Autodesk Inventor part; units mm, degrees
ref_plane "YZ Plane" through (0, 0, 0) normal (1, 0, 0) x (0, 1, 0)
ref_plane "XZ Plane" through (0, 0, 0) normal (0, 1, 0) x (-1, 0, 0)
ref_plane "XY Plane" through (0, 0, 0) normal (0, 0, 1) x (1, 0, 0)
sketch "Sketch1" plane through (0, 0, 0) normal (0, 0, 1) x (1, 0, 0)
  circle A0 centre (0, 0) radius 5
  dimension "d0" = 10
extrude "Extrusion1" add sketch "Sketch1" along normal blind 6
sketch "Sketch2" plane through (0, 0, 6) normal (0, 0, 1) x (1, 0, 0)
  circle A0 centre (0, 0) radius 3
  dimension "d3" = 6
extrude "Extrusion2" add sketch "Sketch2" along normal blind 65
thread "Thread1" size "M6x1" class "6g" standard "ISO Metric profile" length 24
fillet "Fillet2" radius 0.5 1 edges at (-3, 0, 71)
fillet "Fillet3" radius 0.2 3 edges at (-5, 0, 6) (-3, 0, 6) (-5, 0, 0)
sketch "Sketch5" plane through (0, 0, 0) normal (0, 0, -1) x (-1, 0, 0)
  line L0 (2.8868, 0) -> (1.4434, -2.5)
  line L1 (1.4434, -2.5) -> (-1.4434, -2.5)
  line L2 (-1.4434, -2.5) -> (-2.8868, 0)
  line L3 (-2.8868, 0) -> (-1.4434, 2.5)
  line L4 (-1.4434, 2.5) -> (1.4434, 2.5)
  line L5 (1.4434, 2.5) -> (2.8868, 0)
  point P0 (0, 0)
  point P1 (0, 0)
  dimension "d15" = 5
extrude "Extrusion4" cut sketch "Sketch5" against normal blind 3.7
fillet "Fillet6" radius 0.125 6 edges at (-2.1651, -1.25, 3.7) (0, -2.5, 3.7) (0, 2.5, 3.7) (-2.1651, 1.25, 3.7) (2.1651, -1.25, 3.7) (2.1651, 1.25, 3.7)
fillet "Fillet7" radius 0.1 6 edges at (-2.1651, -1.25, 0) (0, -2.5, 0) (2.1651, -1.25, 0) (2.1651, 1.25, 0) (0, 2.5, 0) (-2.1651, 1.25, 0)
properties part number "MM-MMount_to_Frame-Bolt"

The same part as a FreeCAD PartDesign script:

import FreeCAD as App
import Part
import Sketcher
Q = App.Units.Quantity


def edges_at(feature, points):
    """Names of the edges that pass closest to the given points."""
    edges = feature.Shape.Edges
    near = lambda p: min(range(len(edges)), key=lambda i: edges[i].distToShape(Part.Vertex(*p))[0])
    return sorted({f"Edge{near(p) + 1}" for p in points})

doc = App.newDocument("Part")
body = doc.addObject("PartDesign::Body", "Body")

sketch1 = body.newObject("Sketcher::SketchObject", "Sketch")
sketch1.AttachmentSupport = (doc.getObject("XY_Plane"), [""])
sketch1.MapMode = "FlatFace"
sketch1.addGeometry(Part.Circle(App.Vector(0, 0, 0), App.Vector(0, 0, 1), 5), False)
sketch1.addConstraint(Sketcher.Constraint("Coincident", 0, 3, -1, 1))
sketch1.addConstraint(Sketcher.Constraint("Diameter", 0, 10.0))
pad1 = body.newObject("PartDesign::Pad", "Pad")
pad1.Profile = sketch1
pad1.Length = 6

sketch2 = body.newObject("Sketcher::SketchObject", "Sketch001")
sketch2.AttachmentSupport = (doc.getObject("XY_Plane"), [""])
sketch2.MapMode = "FlatFace"
sketch2.AttachmentOffset = App.Placement(App.Vector(0, 0, 6), App.Rotation())
sketch2.addGeometry(Part.Circle(App.Vector(0, 0, 0), App.Vector(0, 0, 1), 3), False)
sketch2.addConstraint(Sketcher.Constraint("Coincident", 0, 3, -1, 1))
sketch2.addConstraint(Sketcher.Constraint("Diameter", 0, 6.0))
pad2 = body.newObject("PartDesign::Pad", "Pad001")
pad2.Profile = sketch2
pad2.Length = 65
doc.recompute()

fillet = body.newObject("PartDesign::Fillet", "Fillet")
fillet.Base = (pad2, edges_at(pad2, [(-3, 0, 71)]))
fillet.Radius = 0.5
doc.recompute()

fillet2 = body.newObject("PartDesign::Fillet", "Fillet001")
fillet2.Base = (fillet, edges_at(fillet, [(-5, 0, 6), (-3, 0, 6), (-5, 0, 0)]))
fillet2.Radius = 0.2

sketch3 = body.newObject("Sketcher::SketchObject", "Sketch002")
sketch3.AttachmentSupport = (doc.getObject("XY_Plane"), [""])
sketch3.MapMode = "FlatFace"
sketch3.addGeometry(Part.LineSegment(App.Vector(-1.4, -2.5, 0), App.Vector(-2.9, 0, 0)), False)
sketch3.addGeometry(Part.LineSegment(App.Vector(-2.9, 0, 0), App.Vector(-1.4, 2.5, 0)), False)
sketch3.addGeometry(Part.LineSegment(App.Vector(-1.4, 2.5, 0), App.Vector(1.4, 2.5, 0)), False)
sketch3.addGeometry(Part.LineSegment(App.Vector(1.4, 2.5, 0), App.Vector(2.9, 0, 0)), False)
sketch3.addGeometry(Part.LineSegment(App.Vector(2.9, 0, 0), App.Vector(1.4, -2.5, 0)), False)
sketch3.addGeometry(Part.LineSegment(App.Vector(1.4, -2.5, 0), App.Vector(-1.4, -2.5, 0)), False)
sketch3.addConstraint(Sketcher.Constraint("Coincident", 0, 2, 1, 1))
sketch3.addConstraint(Sketcher.Constraint("Coincident", 1, 2, 2, 1))
sketch3.addConstraint(Sketcher.Constraint("Coincident", 2, 2, 3, 1))
sketch3.addConstraint(Sketcher.Constraint("Coincident", 3, 2, 4, 1))
sketch3.addConstraint(Sketcher.Constraint("Coincident", 4, 2, 5, 1))
sketch3.addConstraint(Sketcher.Constraint("Coincident", 5, 2, 0, 1))
sketch3.addConstraint(Sketcher.Constraint("Horizontal", 2))
sketch3.addConstraint(Sketcher.Constraint("Horizontal", 5))
sketch3.addConstraint(Sketcher.Constraint("Symmetric", 0, 2, 3, 2, -1, 1))
sketch3.addConstraint(Sketcher.Constraint("Symmetric", 1, 2, 4, 2, -1, 1))
sketch3.addConstraint(Sketcher.Constraint("PointOnObject", 0, 2, -1))
sketch3.addConstraint(Sketcher.Constraint("Parallel", 0, 3))
sketch3.addConstraint(Sketcher.Constraint("Vertical", 2, 2, 4, 2))
sketch3.addConstraint(Sketcher.Constraint("DistanceY", 4, 2, 2, 2, 5.0))
sketch3.addConstraint(Sketcher.Constraint("Angle", 0, Q("120.0004 deg")))
sketch3.addConstraint(Sketcher.Constraint("DistanceX", 2, 1, 2, 2, 2.8868))
pocket1 = body.newObject("PartDesign::Pocket", "Pocket")
pocket1.Profile = sketch3
pocket1.Length = 3.7
pocket1.Reversed = True
doc.recompute()

fillet3 = body.newObject("PartDesign::Fillet", "Fillet002")
fillet3.Base = (pocket1, edges_at(pocket1, [
    (-2.165, -1.25, 3.7),
    (0, -2.5, 3.7),
    (0, 2.5, 3.7),
    (-2.165, 1.25, 3.7),
    (2.165, -1.25, 3.7),
    (2.165, 1.25, 3.7),
]))
fillet3.Radius = 0.125
doc.recompute()

fillet4 = body.newObject("PartDesign::Fillet", "Fillet003")
fillet4.Base = (fillet3, edges_at(fillet3, [
    (-2.165, -1.25, 0),
    (0, -2.5, 0),
    (2.165, -1.25, 0),
    (2.165, 1.25, 0),
    (0, 2.5, 0),
    (-2.165, 1.25, 0),
]))
fillet4.Radius = 0.1

doc.recompute()
